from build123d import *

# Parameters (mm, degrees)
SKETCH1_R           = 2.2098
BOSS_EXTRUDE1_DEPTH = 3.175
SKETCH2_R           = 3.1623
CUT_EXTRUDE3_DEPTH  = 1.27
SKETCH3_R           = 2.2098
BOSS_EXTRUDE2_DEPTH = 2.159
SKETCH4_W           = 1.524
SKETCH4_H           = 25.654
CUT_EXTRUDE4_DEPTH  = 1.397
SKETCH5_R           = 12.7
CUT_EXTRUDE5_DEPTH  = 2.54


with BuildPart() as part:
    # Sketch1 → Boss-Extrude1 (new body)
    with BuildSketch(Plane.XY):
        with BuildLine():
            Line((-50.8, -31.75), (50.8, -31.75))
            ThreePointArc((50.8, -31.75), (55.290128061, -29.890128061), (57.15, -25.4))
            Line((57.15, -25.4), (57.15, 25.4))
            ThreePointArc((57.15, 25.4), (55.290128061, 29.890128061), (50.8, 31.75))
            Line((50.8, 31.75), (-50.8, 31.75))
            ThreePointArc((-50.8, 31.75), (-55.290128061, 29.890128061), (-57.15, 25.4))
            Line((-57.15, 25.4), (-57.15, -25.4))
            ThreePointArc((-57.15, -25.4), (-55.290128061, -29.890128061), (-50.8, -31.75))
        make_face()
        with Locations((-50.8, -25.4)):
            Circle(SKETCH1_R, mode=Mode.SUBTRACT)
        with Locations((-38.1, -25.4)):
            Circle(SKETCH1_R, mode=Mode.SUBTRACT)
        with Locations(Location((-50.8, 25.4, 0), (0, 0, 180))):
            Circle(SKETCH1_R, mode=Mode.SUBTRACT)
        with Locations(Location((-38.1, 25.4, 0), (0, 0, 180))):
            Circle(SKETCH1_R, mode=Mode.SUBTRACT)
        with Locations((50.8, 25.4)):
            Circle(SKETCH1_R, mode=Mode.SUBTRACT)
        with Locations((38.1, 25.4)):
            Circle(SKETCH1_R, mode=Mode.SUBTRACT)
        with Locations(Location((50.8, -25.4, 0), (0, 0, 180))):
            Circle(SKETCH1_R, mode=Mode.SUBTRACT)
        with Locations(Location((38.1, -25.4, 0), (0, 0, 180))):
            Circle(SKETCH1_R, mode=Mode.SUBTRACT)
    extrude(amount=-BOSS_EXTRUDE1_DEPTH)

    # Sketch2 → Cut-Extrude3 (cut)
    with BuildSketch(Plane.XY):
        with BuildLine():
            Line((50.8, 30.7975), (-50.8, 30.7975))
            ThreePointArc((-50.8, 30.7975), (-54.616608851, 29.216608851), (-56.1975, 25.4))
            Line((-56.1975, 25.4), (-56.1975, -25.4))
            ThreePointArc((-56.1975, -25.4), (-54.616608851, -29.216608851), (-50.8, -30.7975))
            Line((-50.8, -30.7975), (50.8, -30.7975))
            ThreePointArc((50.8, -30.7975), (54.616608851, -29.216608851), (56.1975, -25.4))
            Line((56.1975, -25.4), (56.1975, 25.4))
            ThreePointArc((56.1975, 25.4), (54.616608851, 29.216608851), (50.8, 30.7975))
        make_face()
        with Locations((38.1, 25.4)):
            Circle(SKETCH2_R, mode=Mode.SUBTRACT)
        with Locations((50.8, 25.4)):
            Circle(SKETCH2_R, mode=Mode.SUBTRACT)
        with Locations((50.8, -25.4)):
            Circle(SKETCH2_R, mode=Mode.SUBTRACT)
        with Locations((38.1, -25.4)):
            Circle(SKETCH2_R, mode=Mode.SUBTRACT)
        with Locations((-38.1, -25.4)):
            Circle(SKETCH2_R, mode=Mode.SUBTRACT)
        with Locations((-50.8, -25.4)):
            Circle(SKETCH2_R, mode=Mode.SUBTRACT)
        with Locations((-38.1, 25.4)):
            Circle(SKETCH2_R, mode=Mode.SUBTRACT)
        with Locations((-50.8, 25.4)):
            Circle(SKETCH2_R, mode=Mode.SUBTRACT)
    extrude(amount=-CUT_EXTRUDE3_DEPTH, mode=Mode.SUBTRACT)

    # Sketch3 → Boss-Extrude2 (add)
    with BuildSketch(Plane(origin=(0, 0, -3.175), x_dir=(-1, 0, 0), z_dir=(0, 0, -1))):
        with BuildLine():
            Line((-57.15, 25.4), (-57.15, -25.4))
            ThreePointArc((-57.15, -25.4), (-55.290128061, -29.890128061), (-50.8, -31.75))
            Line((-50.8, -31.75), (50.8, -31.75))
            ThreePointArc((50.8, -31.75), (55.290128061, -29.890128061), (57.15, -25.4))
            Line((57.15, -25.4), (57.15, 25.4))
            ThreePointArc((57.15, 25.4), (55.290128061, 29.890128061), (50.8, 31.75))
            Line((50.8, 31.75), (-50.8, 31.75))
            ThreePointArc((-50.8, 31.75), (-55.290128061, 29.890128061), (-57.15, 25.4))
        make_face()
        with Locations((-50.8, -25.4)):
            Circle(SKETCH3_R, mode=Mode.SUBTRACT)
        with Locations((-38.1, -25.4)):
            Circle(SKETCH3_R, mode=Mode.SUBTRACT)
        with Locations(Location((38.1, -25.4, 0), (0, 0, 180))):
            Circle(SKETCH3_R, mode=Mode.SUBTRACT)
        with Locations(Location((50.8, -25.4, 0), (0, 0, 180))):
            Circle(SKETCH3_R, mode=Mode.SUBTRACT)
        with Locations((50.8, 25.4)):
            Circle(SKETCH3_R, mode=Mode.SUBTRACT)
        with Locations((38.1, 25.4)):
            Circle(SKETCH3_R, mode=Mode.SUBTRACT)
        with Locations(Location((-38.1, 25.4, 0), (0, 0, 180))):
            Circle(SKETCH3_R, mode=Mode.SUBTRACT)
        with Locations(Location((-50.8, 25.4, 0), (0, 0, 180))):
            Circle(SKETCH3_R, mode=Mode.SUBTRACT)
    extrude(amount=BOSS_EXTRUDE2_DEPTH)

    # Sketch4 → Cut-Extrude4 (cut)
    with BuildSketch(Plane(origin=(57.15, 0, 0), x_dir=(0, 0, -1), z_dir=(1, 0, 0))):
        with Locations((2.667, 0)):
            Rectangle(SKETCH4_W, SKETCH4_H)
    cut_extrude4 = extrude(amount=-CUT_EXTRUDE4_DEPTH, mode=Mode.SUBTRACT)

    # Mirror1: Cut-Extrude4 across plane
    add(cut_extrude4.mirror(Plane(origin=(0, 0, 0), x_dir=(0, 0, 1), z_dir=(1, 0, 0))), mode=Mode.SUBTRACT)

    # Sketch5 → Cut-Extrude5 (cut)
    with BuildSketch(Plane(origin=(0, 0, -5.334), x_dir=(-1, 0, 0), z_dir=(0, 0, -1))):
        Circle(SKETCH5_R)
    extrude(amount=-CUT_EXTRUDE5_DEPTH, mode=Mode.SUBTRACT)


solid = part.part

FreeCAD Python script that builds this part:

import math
import FreeCAD as App
import Part
import Sketcher
from FreeCAD import Vector
Q = App.Units.Quantity


def add_polygon(sketch, points):
    """Adds a closed chain of lines whose ends are joined by coincident constraints."""
    first, n = sketch.GeometryCount, len(points)
    for a, b in zip(points, points[1:] + points[:1]):
        sketch.addGeometry(Part.LineSegment(App.Vector(*a, 0), App.Vector(*b, 0)), False)
    for i in range(n):
        sketch.addConstraint(Sketcher.Constraint("Coincident", first + i, 2, first + (i + 1) % n, 1))

doc = App.newDocument("Part")
body = doc.addObject("PartDesign::Body", "Body")

# Sketch on XY plane
sketch1 = doc.addObject("Sketcher::SketchObject", "Sketch")
body.addObject(sketch1)
sketch1.AttachmentSupport = (doc.XY_Plane, [""])
sketch1.MapMode = "FlatFace"
sketch1.addGeometry([
    Part.LineSegment(Vector(-50.8, -31.8, 0), Vector(50.8, -31.8, 0)),  # 0
    Part.ArcOfCircle(Part.Circle(Vector(50.8, -25.4, 0), Vector(0, 0, 1), 6.3), math.radians(-90), math.radians(0)),  # 1
    Part.LineSegment(Vector(57.1, -25.4, 0), Vector(57.1, 25.4, 0)),  # 2
    Part.ArcOfCircle(Part.Circle(Vector(50.8, 25.4, 0), Vector(0, 0, 1), 6.3), math.radians(0), math.radians(90)),  # 3
    Part.LineSegment(Vector(50.8, 31.8, 0), Vector(-50.8, 31.8, 0)),  # 4
    Part.ArcOfCircle(Part.Circle(Vector(-50.8, 25.4, 0), Vector(0, 0, 1), 6.3), math.radians(90), math.radians(180)),  # 5
    Part.LineSegment(Vector(-57.1, 25.4, 0), Vector(-57.1, -25.4, 0)),  # 6
    Part.ArcOfCircle(Part.Circle(Vector(-50.8, -25.4, 0), Vector(0, 0, 1), 6.3), math.radians(180), math.radians(270)),  # 7
    Part.Circle(Vector(-50.8, -25.4, 0), Vector(0, 0, 1), 2.2),  # 8
    Part.Circle(Vector(-38.1, -25.4, 0), Vector(0, 0, 1), 2.2),  # 9
    Part.Circle(Vector(38.1, -25.4, 0), Vector(0, 0, 1), 2.2),  # 10
    Part.Circle(Vector(50.8, -25.4, 0), Vector(0, 0, 1), 2.2),  # 11
    Part.Circle(Vector(-50.8, 25.4, 0), Vector(0, 0, 1), 2.2),  # 12
    Part.Circle(Vector(-38.1, 25.4, 0), Vector(0, 0, 1), 2.2),  # 13
    Part.Circle(Vector(38.1, 25.4, 0), Vector(0, 0, 1), 2.2),  # 14
    Part.Circle(Vector(50.8, 25.4, 0), Vector(0, 0, 1), 2.2),  # 15
], False)
sketch1.addConstraint([
    Sketcher.Constraint("Tangent", 0, 2, 1, 1),
    Sketcher.Constraint("Tangent", 1, 2, 2, 1),
    Sketcher.Constraint("Tangent", 2, 2, 3, 1),
    Sketcher.Constraint("Tangent", 3, 2, 4, 1),
    Sketcher.Constraint("Tangent", 4, 2, 5, 1),
    Sketcher.Constraint("Tangent", 5, 2, 6, 1),
    Sketcher.Constraint("Tangent", 6, 2, 7, 1),
    Sketcher.Constraint("Tangent", 7, 2, 0, 1),
    Sketcher.Constraint("Horizontal", 0),
    Sketcher.Constraint("Vertical", 2),
    Sketcher.Constraint("Horizontal", 4),
    Sketcher.Constraint("Vertical", 6),
    Sketcher.Constraint("Coincident", 8, 3, 7, 3),
    Sketcher.Constraint("Coincident", 11, 3, 1, 3),
    Sketcher.Constraint("Coincident", 12, 3, 5, 3),
    Sketcher.Constraint("Coincident", 15, 3, 3, 3),
    Sketcher.Constraint("Equal", 1, 3),
    Sketcher.Constraint("Equal", 3, 5),
    Sketcher.Constraint("Equal", 5, 7),
    Sketcher.Constraint("Equal", 8, 9),
    Sketcher.Constraint("Equal", 9, 10),
    Sketcher.Constraint("Equal", 10, 11),
    Sketcher.Constraint("Equal", 11, 12),
    Sketcher.Constraint("Equal", 12, 13),
    Sketcher.Constraint("Equal", 13, 14),
    Sketcher.Constraint("Equal", 14, 15),
    Sketcher.Constraint("Symmetric", 1, 3, 5, 3, -1, 1),
    Sketcher.Constraint("Symmetric", 10, 3, 13, 3, -1, 1),
    Sketcher.Constraint("Symmetric", 9, 3, 14, 3, -1, 1),
    Sketcher.Constraint("Symmetric", 9, 3, 10, 3, -2),
    Sketcher.Constraint("Horizontal", 8, 3, 9, 3),
    Sketcher.Constraint("DistanceX", 0, 1, 0, 2, Q("4 in")),
    Sketcher.Constraint("DistanceY", 2, 1, 2, 2, Q("2 in")),
    Sketcher.Constraint("Radius", 1, Q("0.25 in")),
    Sketcher.Constraint("Diameter", 8, Q("0.174 in")),
    Sketcher.Constraint("DistanceX", 9, 3, 10, 3, Q("3 in")),
])
pad1 = doc.addObject("PartDesign::Pad", "Pad")
body.addObject(pad1)
pad1.Profile = sketch1
pad1.Length = Q("0.125 in")
pad1.Reversed = True

# Sketch on XY plane
sketch2 = doc.addObject("Sketcher::SketchObject", "Sketch001")
body.addObject(sketch2)
sketch2.AttachmentSupport = (doc.XY_Plane, [""])
sketch2.MapMode = "FlatFace"
sketch2.addGeometry([
    Part.LineSegment(Vector(50.8, 30.8, 0), Vector(-50.8, 30.8, 0)),  # 0
    Part.ArcOfCircle(Part.Circle(Vector(-50.8, 25.4, 0), Vector(0, 0, 1), 5.4), math.radians(90), math.radians(180)),  # 1
    Part.LineSegment(Vector(-56.2, 25.4, 0), Vector(-56.2, -25.4, 0)),  # 2
    Part.ArcOfCircle(Part.Circle(Vector(-50.8, -25.4, 0), Vector(0, 0, 1), 5.4), math.radians(-180), math.radians(-90)),  # 3
    Part.LineSegment(Vector(-50.8, -30.8, 0), Vector(50.8, -30.8, 0)),  # 4
    Part.ArcOfCircle(Part.Circle(Vector(50.8, -25.4, 0), Vector(0, 0, 1), 5.4), math.radians(-90), math.radians(0)),  # 5
    Part.LineSegment(Vector(56.2, -25.4, 0), Vector(56.2, 25.4, 0)),  # 6
    Part.ArcOfCircle(Part.Circle(Vector(50.8, 25.4, 0), Vector(0, 0, 1), 5.4), math.radians(0), math.radians(90)),  # 7
    Part.Circle(Vector(-50.8, -25.4, 0), Vector(0, 0, 1), 3.2),  # 8
    Part.Circle(Vector(-38.1, -25.4, 0), Vector(0, 0, 1), 3.2),  # 9
    Part.Circle(Vector(38.1, -25.4, 0), Vector(0, 0, 1), 3.2),  # 10
    Part.Circle(Vector(50.8, -25.4, 0), Vector(0, 0, 1), 3.2),  # 11
    Part.Circle(Vector(-50.8, 25.4, 0), Vector(0, 0, 1), 3.2),  # 12
    Part.Circle(Vector(-38.1, 25.4, 0), Vector(0, 0, 1), 3.2),  # 13
    Part.Circle(Vector(38.1, 25.4, 0), Vector(0, 0, 1), 3.2),  # 14
    Part.Circle(Vector(50.8, 25.4, 0), Vector(0, 0, 1), 3.2),  # 15
], False)
sketch2.addConstraint([
    Sketcher.Constraint("Tangent", 0, 2, 1, 1),
    Sketcher.Constraint("Tangent", 1, 2, 2, 1),
    Sketcher.Constraint("Tangent", 2, 2, 3, 1),
    Sketcher.Constraint("Tangent", 3, 2, 4, 1),
    Sketcher.Constraint("Tangent", 4, 2, 5, 1),
    Sketcher.Constraint("Tangent", 5, 2, 6, 1),
    Sketcher.Constraint("Tangent", 6, 2, 7, 1),
    Sketcher.Constraint("Tangent", 7, 2, 0, 1),
    Sketcher.Constraint("Horizontal", 0),
    Sketcher.Constraint("Vertical", 2),
    Sketcher.Constraint("Horizontal", 4),
    Sketcher.Constraint("Vertical", 6),
    Sketcher.Constraint("Coincident", 8, 3, 3, 3),
    Sketcher.Constraint("Coincident", 11, 3, 5, 3),
    Sketcher.Constraint("Coincident", 12, 3, 1, 3),
    Sketcher.Constraint("Coincident", 15, 3, 7, 3),
    Sketcher.Constraint("Equal", 1, 3),
    Sketcher.Constraint("Equal", 3, 5),
    Sketcher.Constraint("Equal", 5, 7),
    Sketcher.Constraint("Equal", 8, 9),
    Sketcher.Constraint("Equal", 9, 10),
    Sketcher.Constraint("Equal", 10, 11),
    Sketcher.Constraint("Equal", 11, 12),
    Sketcher.Constraint("Equal", 12, 13),
    Sketcher.Constraint("Equal", 13, 14),
    Sketcher.Constraint("Equal", 14, 15),
    Sketcher.Constraint("Symmetric", 1, 3, 5, 3, -1, 1),
    Sketcher.Constraint("Symmetric", 10, 3, 13, 3, -1, 1),
    Sketcher.Constraint("Symmetric", 9, 3, 14, 3, -1, 1),
    Sketcher.Constraint("Symmetric", 9, 3, 10, 3, -2),
    Sketcher.Constraint("Horizontal", 8, 3, 9, 3),
    Sketcher.Constraint("DistanceX", 0, 2, 0, 1, Q("4 in")),
    Sketcher.Constraint("DistanceY", 2, 2, 2, 1, Q("2 in")),
    Sketcher.Constraint("Diameter", 8, Q("0.249 in")),
    Sketcher.Constraint("DistanceX", 9, 3, 10, 3, Q("3 in")),
    Sketcher.Constraint("Radius", 1, Q("0.2125 in")),
])
pocket1 = doc.addObject("PartDesign::Pocket", "Pocket")
body.addObject(pocket1)
pocket1.Profile = sketch2
pocket1.Length = Q("0.05 in")

# Sketch on XY plane
sketch3 = doc.addObject("Sketcher::SketchObject", "Sketch002")
body.addObject(sketch3)
sketch3.AttachmentSupport = (doc.XY_Plane, [""])
sketch3.MapMode = "FlatFace"
sketch3.AttachmentOffset = App.Placement(Vector(0, 0, -0.125 * 25.4), App.Rotation())
sketch3.addGeometry([
    Part.LineSegment(Vector(57.1, 25.4, 0), Vector(57.1, -25.4, 0)),  # 0
    Part.ArcOfCircle(Part.Circle(Vector(50.8, -25.4, 0), Vector(0, 0, 1), 6.3), math.radians(-90), math.radians(0)),  # 1
    Part.LineSegment(Vector(50.8, -31.8, 0), Vector(-50.8, -31.8, 0)),  # 2
    Part.ArcOfCircle(Part.Circle(Vector(-50.8, -25.4, 0), Vector(0, 0, 1), 6.3), math.radians(180), math.radians(270)),  # 3
    Part.LineSegment(Vector(-57.1, -25.4, 0), Vector(-57.1, 25.4, 0)),  # 4
    Part.ArcOfCircle(Part.Circle(Vector(-50.8, 25.4, 0), Vector(0, 0, 1), 6.3), math.radians(90), math.radians(180)),  # 5
    Part.LineSegment(Vector(-50.8, 31.8, 0), Vector(50.8, 31.8, 0)),  # 6
    Part.ArcOfCircle(Part.Circle(Vector(50.8, 25.4, 0), Vector(0, 0, 1), 6.3), math.radians(0), math.radians(90)),  # 7
    Part.Circle(Vector(50.8, -25.4, 0), Vector(0, 0, 1), 2.2),  # 8
    Part.Circle(Vector(38.1, -25.4, 0), Vector(0, 0, 1), 2.2),  # 9
    Part.Circle(Vector(-38.1, -25.4, 0), Vector(0, 0, 1), 2.2),  # 10
    Part.Circle(Vector(-50.8, -25.4, 0), Vector(0, 0, 1), 2.2),  # 11
    Part.Circle(Vector(50.8, 25.4, 0), Vector(0, 0, 1), 2.2),  # 12
    Part.Circle(Vector(38.1, 25.4, 0), Vector(0, 0, 1), 2.2),  # 13
    Part.Circle(Vector(-38.1, 25.4, 0), Vector(0, 0, 1), 2.2),  # 14
    Part.Circle(Vector(-50.8, 25.4, 0), Vector(0, 0, 1), 2.2),  # 15
], False)
sketch3.addConstraint([
    Sketcher.Constraint("Tangent", 0, 2, 1, 2),
    Sketcher.Constraint("Tangent", 1, 1, 2, 1),
    Sketcher.Constraint("Tangent", 2, 2, 3, 2),
    Sketcher.Constraint("Tangent", 3, 1, 4, 1),
    Sketcher.Constraint("Tangent", 4, 2, 5, 2),
    Sketcher.Constraint("Tangent", 5, 1, 6, 1),
    Sketcher.Constraint("Tangent", 6, 2, 7, 2),
    Sketcher.Constraint("Tangent", 7, 1, 0, 1),
    Sketcher.Constraint("Vertical", 0),
    Sketcher.Constraint("Horizontal", 2),
    Sketcher.Constraint("Vertical", 4),
    Sketcher.Constraint("Horizontal", 6),
    Sketcher.Constraint("Coincident", 8, 3, 1, 3),
    Sketcher.Constraint("Coincident", 11, 3, 3, 3),
    Sketcher.Constraint("Coincident", 12, 3, 7, 3),
    Sketcher.Constraint("Coincident", 15, 3, 5, 3),
    Sketcher.Constraint("Equal", 1, 3),
    Sketcher.Constraint("Equal", 3, 5),
    Sketcher.Constraint("Equal", 5, 7),
    Sketcher.Constraint("Equal", 8, 9),
    Sketcher.Constraint("Equal", 9, 10),
    Sketcher.Constraint("Equal", 10, 11),
    Sketcher.Constraint("Equal", 11, 12),
    Sketcher.Constraint("Equal", 12, 13),
    Sketcher.Constraint("Equal", 13, 14),
    Sketcher.Constraint("Equal", 14, 15),
    Sketcher.Constraint("Symmetric", 1, 3, 5, 3, -1, 1),
    Sketcher.Constraint("Symmetric", 10, 3, 13, 3, -1, 1),
    Sketcher.Constraint("Symmetric", 9, 3, 14, 3, -1, 1),
    Sketcher.Constraint("Symmetric", 9, 3, 10, 3, -2),
    Sketcher.Constraint("Horizontal", 8, 3, 9, 3),
    Sketcher.Constraint("DistanceX", 2, 2, 2, 1, Q("4 in")),
    Sketcher.Constraint("DistanceY", 0, 2, 0, 1, Q("2 in")),
    Sketcher.Constraint("Radius", 1, Q("0.25 in")),
    Sketcher.Constraint("Diameter", 8, Q("0.174 in")),
    Sketcher.Constraint("DistanceX", 10, 3, 9, 3, Q("3 in")),
])
pad2 = doc.addObject("PartDesign::Pad", "Pad001")
body.addObject(pad2)
pad2.Profile = sketch3
pad2.Length = Q("0.085 in")
pad2.Reversed = True

# Sketch on YZ plane
sketch4 = doc.addObject("Sketcher::SketchObject", "Sketch003")
body.addObject(sketch4)
sketch4.AttachmentSupport = (doc.YZ_Plane, [""])
sketch4.MapMode = "FlatFace"
sketch4.AttachmentOffset = App.Placement(Vector(0, 0, 2.25 * 25.4), App.Rotation())
add_polygon(sketch4, [(12.8, -1.9), (-12.8, -1.9), (-12.8, -3.4), (12.8, -3.4)])  # lines 0-3
sketch4.addConstraint([
    Sketcher.Constraint("Horizontal", 0),
    Sketcher.Constraint("Vertical", 1),
    Sketcher.Constraint("Horizontal", 2),
    Sketcher.Constraint("Vertical", 3),
    Sketcher.Constraint("DistanceX", 0, 2, 0, 1, Q("1.01 in")),
    Sketcher.Constraint("DistanceY", 1, 2, 1, 1, Q("0.06 in")),
    Sketcher.Constraint("DistanceX", 0, 2, -1, 1, Q("0.505 in")),
    Sketcher.Constraint("DistanceY", 0, 2, -1, 1, Q("0.075 in")),
])
pocket2 = doc.addObject("PartDesign::Pocket", "Pocket001")
body.addObject(pocket2)
pocket2.Profile = sketch4
pocket2.Length = Q("0.055 in")
doc.recompute()

mirrored = doc.addObject("PartDesign::Mirrored", "Mirrored")
body.addObject(mirrored)
mirrored.Originals = [pocket2]
mirrored.MirrorPlane = (doc.YZ_Plane, [""])
body.Tip = mirrored

# Sketch on XY plane
sketch5 = doc.addObject("Sketcher::SketchObject", "Sketch004")
body.addObject(sketch5)
sketch5.AttachmentSupport = (doc.XY_Plane, [""])
sketch5.MapMode = "FlatFace"
sketch5.AttachmentOffset = App.Placement(Vector(0, 0, -0.21 * 25.4), App.Rotation())
sketch5.addGeometry(Part.Circle(Vector(0, 0, 0), Vector(0, 0, 1), 13), False)
sketch5.addConstraint([
    Sketcher.Constraint("Coincident", 0, 3, -1, 1),
    Sketcher.Constraint("Diameter", 0, Q("1 in")),
])
pocket3 = doc.addObject("PartDesign::Pocket", "Pocket002")
body.addObject(pocket3)
pocket3.Profile = sketch5
pocket3.Length = Q("0.1 in")
pocket3.Reversed = True

doc.recompute()
